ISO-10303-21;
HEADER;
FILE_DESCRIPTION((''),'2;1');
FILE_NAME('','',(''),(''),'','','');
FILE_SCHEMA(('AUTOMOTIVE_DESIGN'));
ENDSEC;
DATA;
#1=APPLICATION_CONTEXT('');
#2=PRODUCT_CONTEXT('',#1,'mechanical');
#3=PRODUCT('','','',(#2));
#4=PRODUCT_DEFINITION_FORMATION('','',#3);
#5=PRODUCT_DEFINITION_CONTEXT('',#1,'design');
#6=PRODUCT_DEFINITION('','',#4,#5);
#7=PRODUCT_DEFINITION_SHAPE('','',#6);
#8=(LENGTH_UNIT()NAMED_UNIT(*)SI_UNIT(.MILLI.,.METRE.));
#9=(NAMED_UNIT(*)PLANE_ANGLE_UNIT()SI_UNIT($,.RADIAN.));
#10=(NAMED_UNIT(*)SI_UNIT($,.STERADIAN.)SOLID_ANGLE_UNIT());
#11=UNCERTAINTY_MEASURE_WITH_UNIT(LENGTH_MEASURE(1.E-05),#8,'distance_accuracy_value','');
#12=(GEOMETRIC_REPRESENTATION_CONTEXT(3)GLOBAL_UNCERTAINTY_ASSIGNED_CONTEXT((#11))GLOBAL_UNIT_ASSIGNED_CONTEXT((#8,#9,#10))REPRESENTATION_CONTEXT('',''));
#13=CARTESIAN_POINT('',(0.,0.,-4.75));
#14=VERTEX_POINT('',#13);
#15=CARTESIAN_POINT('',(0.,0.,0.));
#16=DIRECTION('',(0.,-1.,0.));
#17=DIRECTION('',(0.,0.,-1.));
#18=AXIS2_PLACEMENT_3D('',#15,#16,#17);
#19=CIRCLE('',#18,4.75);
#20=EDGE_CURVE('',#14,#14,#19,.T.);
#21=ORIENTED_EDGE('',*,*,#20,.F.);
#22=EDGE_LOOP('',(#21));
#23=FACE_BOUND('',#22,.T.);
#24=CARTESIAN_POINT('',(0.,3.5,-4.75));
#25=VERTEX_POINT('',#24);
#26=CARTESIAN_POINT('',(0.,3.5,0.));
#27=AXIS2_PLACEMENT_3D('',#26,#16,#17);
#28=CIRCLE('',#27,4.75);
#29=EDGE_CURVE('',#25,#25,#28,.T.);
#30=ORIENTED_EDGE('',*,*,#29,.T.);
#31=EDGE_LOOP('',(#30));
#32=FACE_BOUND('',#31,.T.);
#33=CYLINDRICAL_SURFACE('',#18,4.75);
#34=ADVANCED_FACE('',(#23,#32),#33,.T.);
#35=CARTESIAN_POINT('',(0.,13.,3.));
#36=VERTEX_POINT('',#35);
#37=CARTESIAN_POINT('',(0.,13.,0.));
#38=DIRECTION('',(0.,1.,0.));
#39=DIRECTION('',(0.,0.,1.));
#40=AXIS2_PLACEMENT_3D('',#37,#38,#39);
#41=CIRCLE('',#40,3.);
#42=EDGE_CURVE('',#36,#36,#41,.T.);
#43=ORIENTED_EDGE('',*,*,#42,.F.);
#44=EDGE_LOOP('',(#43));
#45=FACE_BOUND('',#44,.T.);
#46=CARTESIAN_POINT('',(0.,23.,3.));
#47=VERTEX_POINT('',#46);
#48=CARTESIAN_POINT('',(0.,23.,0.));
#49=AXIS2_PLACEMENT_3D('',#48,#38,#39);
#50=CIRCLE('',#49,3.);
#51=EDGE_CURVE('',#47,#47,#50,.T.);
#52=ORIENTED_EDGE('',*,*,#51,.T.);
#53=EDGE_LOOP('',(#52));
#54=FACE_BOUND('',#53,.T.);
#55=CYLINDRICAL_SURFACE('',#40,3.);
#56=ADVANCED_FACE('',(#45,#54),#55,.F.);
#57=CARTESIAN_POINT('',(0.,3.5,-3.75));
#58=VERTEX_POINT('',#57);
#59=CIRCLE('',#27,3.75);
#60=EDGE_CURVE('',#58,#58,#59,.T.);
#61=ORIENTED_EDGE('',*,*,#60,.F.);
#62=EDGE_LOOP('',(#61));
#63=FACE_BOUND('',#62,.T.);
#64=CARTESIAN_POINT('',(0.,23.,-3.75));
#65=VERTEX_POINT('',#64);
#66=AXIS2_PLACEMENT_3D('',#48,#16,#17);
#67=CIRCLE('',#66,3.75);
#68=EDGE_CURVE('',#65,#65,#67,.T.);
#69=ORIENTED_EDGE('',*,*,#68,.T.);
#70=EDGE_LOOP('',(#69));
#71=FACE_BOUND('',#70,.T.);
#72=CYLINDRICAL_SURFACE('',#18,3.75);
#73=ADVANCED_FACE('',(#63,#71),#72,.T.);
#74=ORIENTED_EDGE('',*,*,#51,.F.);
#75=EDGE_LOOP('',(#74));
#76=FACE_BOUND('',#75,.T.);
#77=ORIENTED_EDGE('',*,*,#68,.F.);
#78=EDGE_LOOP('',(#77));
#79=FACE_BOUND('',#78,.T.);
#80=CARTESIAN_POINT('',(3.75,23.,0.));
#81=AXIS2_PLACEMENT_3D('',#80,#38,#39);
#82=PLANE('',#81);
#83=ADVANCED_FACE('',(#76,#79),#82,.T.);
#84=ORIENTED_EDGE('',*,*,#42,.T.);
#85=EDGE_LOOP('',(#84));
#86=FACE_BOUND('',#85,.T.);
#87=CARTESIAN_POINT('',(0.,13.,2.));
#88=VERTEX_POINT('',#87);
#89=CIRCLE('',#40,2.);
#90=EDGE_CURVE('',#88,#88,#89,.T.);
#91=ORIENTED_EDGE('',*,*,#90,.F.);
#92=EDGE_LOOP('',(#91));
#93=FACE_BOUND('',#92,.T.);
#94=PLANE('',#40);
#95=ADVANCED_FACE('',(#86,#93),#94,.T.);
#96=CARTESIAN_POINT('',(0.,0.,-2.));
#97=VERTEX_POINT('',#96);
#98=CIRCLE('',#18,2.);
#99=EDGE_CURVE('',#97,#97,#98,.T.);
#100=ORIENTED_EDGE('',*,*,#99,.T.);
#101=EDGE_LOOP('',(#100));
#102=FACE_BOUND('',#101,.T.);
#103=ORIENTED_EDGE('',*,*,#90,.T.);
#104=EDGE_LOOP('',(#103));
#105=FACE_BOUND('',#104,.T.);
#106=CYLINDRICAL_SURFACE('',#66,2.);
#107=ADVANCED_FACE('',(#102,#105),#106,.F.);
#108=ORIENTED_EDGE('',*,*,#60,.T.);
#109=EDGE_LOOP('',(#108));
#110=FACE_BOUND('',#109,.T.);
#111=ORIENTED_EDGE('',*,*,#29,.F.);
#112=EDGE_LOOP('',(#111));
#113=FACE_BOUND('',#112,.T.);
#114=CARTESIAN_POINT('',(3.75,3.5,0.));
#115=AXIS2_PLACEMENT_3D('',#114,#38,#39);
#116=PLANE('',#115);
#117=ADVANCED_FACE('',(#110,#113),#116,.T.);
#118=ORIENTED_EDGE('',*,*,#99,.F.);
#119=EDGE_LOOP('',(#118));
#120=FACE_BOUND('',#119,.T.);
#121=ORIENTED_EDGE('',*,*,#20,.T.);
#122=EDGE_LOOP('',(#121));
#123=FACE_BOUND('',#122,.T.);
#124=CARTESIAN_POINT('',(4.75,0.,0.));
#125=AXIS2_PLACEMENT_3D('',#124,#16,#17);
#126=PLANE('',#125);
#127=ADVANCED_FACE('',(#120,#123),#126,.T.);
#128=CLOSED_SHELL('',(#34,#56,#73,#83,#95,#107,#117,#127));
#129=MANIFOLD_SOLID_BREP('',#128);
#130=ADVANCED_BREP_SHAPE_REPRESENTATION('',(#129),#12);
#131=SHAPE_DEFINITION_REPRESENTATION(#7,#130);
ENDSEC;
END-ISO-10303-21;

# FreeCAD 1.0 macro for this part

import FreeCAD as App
import Part
import Sketcher


def add_polygon(sketch, points):
    """Adds a closed chain of lines whose ends are joined by coincident constraints."""
    first, n = sketch.GeometryCount, len(points)
    for a, b in zip(points, points[1:] + points[:1]):
        sketch.addGeometry(Part.LineSegment(App.Vector(*a, 0), App.Vector(*b, 0)), False)
    for i in range(n):
        sketch.addConstraint(Sketcher.Constraint("Coincident", first + i, 2, first + (i + 1) % n, 1))

doc = App.newDocument("Part")
body = doc.addObject("PartDesign::Body", "Body")

sketch1 = body.newObject("Sketcher::SketchObject", "Sketch")
sketch1.AttachmentSupport = (doc.getObject("XY_Plane"), [""])
sketch1.MapMode = "FlatFace"
add_polygon(sketch1, [(3.75, 3.5), (3.75, 23), (0, 23), (0, 0), (4.75, 0), (4.75, 3.5)])
sketch1.addConstraint([
    Sketcher.Constraint("Vertical", 0),
    Sketcher.Constraint("Horizontal", 1),
    Sketcher.Constraint("Vertical", 2),
    Sketcher.Constraint("Horizontal", 3),
    Sketcher.Constraint("Vertical", 4),
    Sketcher.Constraint("Horizontal", 5),
    Sketcher.Constraint("Coincident", 2, 2, -1, 1),
    Sketcher.Constraint("DistanceX", 5, 2, 5, 1, 1.0),
    Sketcher.Constraint("DistanceY", 2, 2, 2, 1, 23.0),
    Sketcher.Constraint("DistanceY", 0, 1, 0, 2, 19.5),
    Sketcher.Constraint("DistanceX", 1, 2, 1, 1, 3.75),
])
revolution = body.newObject("PartDesign::Revolution", "Revolution")
revolution.Profile = sketch1
revolution.ReferenceAxis = (sketch1, ["V_Axis"])
revolution.Angle = 360

sketch2 = body.newObject("Sketcher::SketchObject", "Sketch001")
sketch2.AttachmentSupport = (doc.getObject("XZ_Plane"), [""])
sketch2.MapMode = "FlatFace"
sketch2.AttachmentOffset = App.Placement(App.Vector(0, 0, -23), App.Rotation())
sketch2.addGeometry(Part.Circle(App.Vector(0, 0, 0), App.Vector(0, 0, 1), 3), False)
sketch2.addConstraint([
    Sketcher.Constraint("Coincident", 0, 3, -1, 1),
    Sketcher.Constraint("Diameter", 0, 6.0),
])
pocket1 = body.newObject("PartDesign::Pocket", "Pocket")
pocket1.Profile = sketch2
pocket1.Length = 10
pocket1.Reversed = True

sketch3 = body.newObject("Sketcher::SketchObject", "Sketch002")
sketch3.AttachmentSupport = (doc.getObject("XZ_Plane"), [""])
sketch3.MapMode = "FlatFace"
sketch3.addGeometry(Part.Circle(App.Vector(0, 0, 0), App.Vector(0, 0, 1), 2), False)
sketch3.addConstraint([
    Sketcher.Constraint("Coincident", 0, 3, -1, 1),
    Sketcher.Constraint("Diameter", 0, 4.0),
])
pocket2 = body.newObject("PartDesign::Pocket", "Pocket001")
pocket2.Profile = sketch3
pocket2.Type = "ThroughAll"

doc.recompute()
